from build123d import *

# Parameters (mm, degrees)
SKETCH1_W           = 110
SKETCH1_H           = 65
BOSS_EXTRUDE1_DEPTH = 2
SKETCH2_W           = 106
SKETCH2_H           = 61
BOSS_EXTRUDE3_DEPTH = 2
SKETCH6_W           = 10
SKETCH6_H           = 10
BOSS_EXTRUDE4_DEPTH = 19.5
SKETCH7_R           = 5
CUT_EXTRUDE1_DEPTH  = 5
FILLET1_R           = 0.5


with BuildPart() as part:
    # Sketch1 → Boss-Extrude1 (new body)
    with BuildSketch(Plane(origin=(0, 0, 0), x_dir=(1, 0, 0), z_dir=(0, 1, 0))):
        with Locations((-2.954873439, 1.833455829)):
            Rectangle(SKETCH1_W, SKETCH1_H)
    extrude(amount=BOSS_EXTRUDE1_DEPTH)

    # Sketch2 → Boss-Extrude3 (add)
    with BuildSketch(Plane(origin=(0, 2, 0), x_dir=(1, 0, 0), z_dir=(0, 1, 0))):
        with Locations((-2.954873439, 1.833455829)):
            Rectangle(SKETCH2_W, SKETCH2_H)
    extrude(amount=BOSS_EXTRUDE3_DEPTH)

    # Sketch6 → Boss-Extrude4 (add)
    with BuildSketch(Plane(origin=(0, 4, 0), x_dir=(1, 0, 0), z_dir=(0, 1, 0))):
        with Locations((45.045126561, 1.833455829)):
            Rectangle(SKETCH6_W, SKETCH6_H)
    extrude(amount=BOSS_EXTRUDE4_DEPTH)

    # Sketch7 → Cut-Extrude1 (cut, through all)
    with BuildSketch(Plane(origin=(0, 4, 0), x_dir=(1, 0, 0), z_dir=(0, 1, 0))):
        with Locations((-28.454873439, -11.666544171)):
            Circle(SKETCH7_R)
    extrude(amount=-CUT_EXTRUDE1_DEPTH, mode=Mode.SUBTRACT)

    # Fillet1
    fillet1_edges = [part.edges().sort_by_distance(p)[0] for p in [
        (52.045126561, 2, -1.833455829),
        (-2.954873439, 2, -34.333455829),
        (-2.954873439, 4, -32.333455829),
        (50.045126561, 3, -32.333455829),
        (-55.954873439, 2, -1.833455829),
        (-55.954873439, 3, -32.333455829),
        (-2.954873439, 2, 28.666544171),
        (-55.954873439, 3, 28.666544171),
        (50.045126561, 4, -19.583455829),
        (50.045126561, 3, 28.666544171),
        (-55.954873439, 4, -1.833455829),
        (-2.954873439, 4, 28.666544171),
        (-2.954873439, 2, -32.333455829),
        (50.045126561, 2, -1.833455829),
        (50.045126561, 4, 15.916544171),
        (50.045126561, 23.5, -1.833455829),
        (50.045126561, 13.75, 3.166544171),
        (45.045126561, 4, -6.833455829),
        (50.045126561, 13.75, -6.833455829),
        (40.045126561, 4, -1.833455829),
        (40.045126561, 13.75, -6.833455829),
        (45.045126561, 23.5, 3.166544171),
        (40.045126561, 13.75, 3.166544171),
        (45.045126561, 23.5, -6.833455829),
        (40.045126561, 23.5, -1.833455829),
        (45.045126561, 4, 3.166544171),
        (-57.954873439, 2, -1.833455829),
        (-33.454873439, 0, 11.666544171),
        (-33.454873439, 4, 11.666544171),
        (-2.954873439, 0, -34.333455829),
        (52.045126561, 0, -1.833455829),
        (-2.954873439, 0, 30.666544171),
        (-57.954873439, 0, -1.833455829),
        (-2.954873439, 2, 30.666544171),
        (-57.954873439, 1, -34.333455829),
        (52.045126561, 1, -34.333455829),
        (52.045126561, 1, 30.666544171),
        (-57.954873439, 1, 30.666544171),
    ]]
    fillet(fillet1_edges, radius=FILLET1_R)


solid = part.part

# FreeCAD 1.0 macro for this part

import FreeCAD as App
import Part
import Sketcher
from FreeCAD import Vector
Q = App.Units.Quantity

doc = App.newDocument("Part")
body = doc.addObject("PartDesign::Body", "Body")

sketch1 = doc.addObject("Sketcher::SketchObject", "Sketch")
body.addObject(sketch1)
sketch1.AttachmentSupport = (doc.XZ_Plane, [""])
sketch1.MapMode = "FlatFace"
sketch1.addGeometry(Part.LineSegment(Vector(-58, -34, 0), Vector(-58, 31, 0)), False)
sketch1.addGeometry(Part.LineSegment(Vector(-58, 31, 0), Vector(52, 31, 0)), False)
sketch1.addGeometry(Part.LineSegment(Vector(52, 31, 0), Vector(52, -34, 0)), False)
sketch1.addGeometry(Part.LineSegment(Vector(52, -34, 0), Vector(-58, -34, 0)), False)
sketch1.addConstraint(Sketcher.Constraint("Coincident", 0, 2, 1, 1))
sketch1.addConstraint(Sketcher.Constraint("Coincident", 1, 2, 2, 1))
sketch1.addConstraint(Sketcher.Constraint("Coincident", 2, 2, 3, 1))
sketch1.addConstraint(Sketcher.Constraint("Coincident", 3, 2, 0, 1))
sketch1.addConstraint(Sketcher.Constraint("Vertical", 0))
sketch1.addConstraint(Sketcher.Constraint("Horizontal", 1))
sketch1.addConstraint(Sketcher.Constraint("Vertical", 2))
sketch1.addConstraint(Sketcher.Constraint("Horizontal", 3))
sketch1.addConstraint(Sketcher.Constraint("DistanceX", 1, 1, 1, 2, Q("110 mm")))
sketch1.addConstraint(Sketcher.Constraint("DistanceY", 0, 1, 0, 2, Q("65 mm")))
sketch1.addConstraint(Sketcher.Constraint("DistanceX", 0, 2, -1, 1, Q("57.954873 mm")))
sketch1.addConstraint(Sketcher.Constraint("DistanceY", -1, 1, 0, 2, Q("30.666544 mm")))
pad1 = doc.addObject("PartDesign::Pad", "Pad")
body.addObject(pad1)
pad1.Profile = sketch1
pad1.Length = 2
pad1.Reversed = True

sketch2 = doc.addObject("Sketcher::SketchObject", "Sketch001")
body.addObject(sketch2)
sketch2.AttachmentSupport = (doc.XZ_Plane, [""])
sketch2.MapMode = "FlatFace"
sketch2.AttachmentOffset = App.Placement(Vector(0, 0, -2), App.Rotation())
sketch2.addGeometry(Part.LineSegment(Vector(-56, -32, 0), Vector(-56, 29, 0)), False)
sketch2.addGeometry(Part.LineSegment(Vector(-56, 29, 0), Vector(50, 29, 0)), False)
sketch2.addGeometry(Part.LineSegment(Vector(50, 29, 0), Vector(50, -32, 0)), False)
sketch2.addGeometry(Part.LineSegment(Vector(50, -32, 0), Vector(-56, -32, 0)), False)
sketch2.addConstraint(Sketcher.Constraint("Coincident", 0, 2, 1, 1))
sketch2.addConstraint(Sketcher.Constraint("Coincident", 1, 2, 2, 1))
sketch2.addConstraint(Sketcher.Constraint("Coincident", 2, 2, 3, 1))
sketch2.addConstraint(Sketcher.Constraint("Coincident", 3, 2, 0, 1))
sketch2.addConstraint(Sketcher.Constraint("Vertical", 0))
sketch2.addConstraint(Sketcher.Constraint("Horizontal", 1))
sketch2.addConstraint(Sketcher.Constraint("Vertical", 2))
sketch2.addConstraint(Sketcher.Constraint("Horizontal", 3))
sketch2.addConstraint(Sketcher.Constraint("DistanceX", 1, 1, 1, 2, Q("106 mm")))
sketch2.addConstraint(Sketcher.Constraint("DistanceY", 0, 1, 0, 2, Q("61 mm")))
sketch2.addConstraint(Sketcher.Constraint("DistanceX", 0, 2, -1, 1, Q("55.954873 mm")))
sketch2.addConstraint(Sketcher.Constraint("DistanceY", -1, 1, 0, 2, Q("28.666544 mm")))
pad2 = doc.addObject("PartDesign::Pad", "Pad001")
body.addObject(pad2)
pad2.Profile = sketch2
pad2.Length = 2
pad2.Reversed = True

sketch3 = doc.addObject("Sketcher::SketchObject", "Sketch002")
body.addObject(sketch3)
sketch3.AttachmentSupport = (doc.XZ_Plane, [""])
sketch3.MapMode = "FlatFace"
sketch3.AttachmentOffset = App.Placement(Vector(0, 0, -4), App.Rotation())
sketch3.addGeometry(Part.LineSegment(Vector(40, -7, 0), Vector(40, 3, 0)), False)
sketch3.addGeometry(Part.LineSegment(Vector(40, 3, 0), Vector(50, 3, 0)), False)
sketch3.addGeometry(Part.LineSegment(Vector(50, 3, 0), Vector(50, -7, 0)), False)
sketch3.addGeometry(Part.LineSegment(Vector(50, -7, 0), Vector(40, -7, 0)), False)
sketch3.addConstraint(Sketcher.Constraint("Coincident", 0, 2, 1, 1))
sketch3.addConstraint(Sketcher.Constraint("Coincident", 1, 2, 2, 1))
sketch3.addConstraint(Sketcher.Constraint("Coincident", 2, 2, 3, 1))
sketch3.addConstraint(Sketcher.Constraint("Coincident", 3, 2, 0, 1))
sketch3.addConstraint(Sketcher.Constraint("Vertical", 0))
sketch3.addConstraint(Sketcher.Constraint("Horizontal", 1))
sketch3.addConstraint(Sketcher.Constraint("Vertical", 2))
sketch3.addConstraint(Sketcher.Constraint("Horizontal", 3))
sketch3.addConstraint(Sketcher.Constraint("Equal", 3, 0))
sketch3.addConstraint(Sketcher.Constraint("DistanceX", 1, 1, 1, 2, Q("10 mm")))
sketch3.addConstraint(Sketcher.Constraint("DistanceX", -1, 1, 0, 2, Q("40.045127 mm")))
sketch3.addConstraint(Sketcher.Constraint("DistanceY", -1, 1, 0, 2, Q("3.166544 mm")))
pad3 = doc.addObject("PartDesign::Pad", "Pad002")
body.addObject(pad3)
pad3.Profile = sketch3
pad3.Length = 19.5
pad3.Reversed = True

sketch4 = doc.addObject("Sketcher::SketchObject", "Sketch003")
body.addObject(sketch4)
sketch4.AttachmentSupport = (doc.XZ_Plane, [""])
sketch4.MapMode = "FlatFace"
sketch4.AttachmentOffset = App.Placement(Vector(0, 0, -4), App.Rotation())
sketch4.addGeometry(Part.Circle(Vector(-28, 12, 0), Vector(0, 0, 1), 5), False)
sketch4.addConstraint(Sketcher.Constraint("Diameter", 0, Q("10 mm")))
sketch4.addConstraint(Sketcher.Constraint("DistanceX", 0, 3, -1, 1, Q("28.454873 mm")))
sketch4.addConstraint(Sketcher.Constraint("DistanceY", -1, 1, 0, 3, Q("11.666544 mm")))
pocket1 = doc.addObject("PartDesign::Pocket", "Pocket")
body.addObject(pocket1)
pocket1.Profile = sketch4
pocket1.Type = "ThroughAll"
pocket1.Reversed = True
doc.recompute()

fillet = doc.addObject("PartDesign::Fillet", "Fillet")
body.addObject(fillet)
fillet.Base = (pocket1, ["Edge1"])
fillet.UseAllEdges = True
fillet.Radius = 0.5

doc.recompute()
